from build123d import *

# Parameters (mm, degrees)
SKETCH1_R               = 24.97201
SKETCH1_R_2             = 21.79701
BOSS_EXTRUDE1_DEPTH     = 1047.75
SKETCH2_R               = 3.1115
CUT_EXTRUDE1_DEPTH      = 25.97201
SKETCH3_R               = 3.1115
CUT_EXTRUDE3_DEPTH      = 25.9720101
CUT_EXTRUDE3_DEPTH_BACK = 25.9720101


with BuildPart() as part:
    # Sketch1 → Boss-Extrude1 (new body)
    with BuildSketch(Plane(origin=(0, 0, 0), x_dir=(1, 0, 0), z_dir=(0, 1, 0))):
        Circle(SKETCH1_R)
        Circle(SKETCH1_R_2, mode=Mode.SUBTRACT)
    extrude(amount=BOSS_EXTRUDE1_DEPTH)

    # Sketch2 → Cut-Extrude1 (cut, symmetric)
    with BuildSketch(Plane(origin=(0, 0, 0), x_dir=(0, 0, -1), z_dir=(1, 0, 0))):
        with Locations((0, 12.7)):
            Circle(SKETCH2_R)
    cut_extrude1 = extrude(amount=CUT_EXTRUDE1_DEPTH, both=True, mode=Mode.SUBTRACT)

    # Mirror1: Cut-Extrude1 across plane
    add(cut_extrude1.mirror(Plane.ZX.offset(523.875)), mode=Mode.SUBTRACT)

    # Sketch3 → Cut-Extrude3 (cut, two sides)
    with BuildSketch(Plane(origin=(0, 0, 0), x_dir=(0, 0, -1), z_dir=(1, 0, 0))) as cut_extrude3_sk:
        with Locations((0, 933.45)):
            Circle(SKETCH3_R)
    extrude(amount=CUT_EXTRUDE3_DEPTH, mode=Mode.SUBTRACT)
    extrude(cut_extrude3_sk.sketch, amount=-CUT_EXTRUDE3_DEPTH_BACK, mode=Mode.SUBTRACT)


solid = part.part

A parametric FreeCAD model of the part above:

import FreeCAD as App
import Part
import Sketcher

V = App.Vector
Q = App.Units.Quantity

doc = App.newDocument("Part")
body = doc.addObject("PartDesign::Body", "Body")

# Sketch on XZ plane
sketch1 = doc.addObject("Sketcher::SketchObject", "Sketch")
body.addObject(sketch1)
sketch1.AttachmentSupport = (doc.XZ_Plane, [""])
sketch1.MapMode = "FlatFace"
sketch1.addGeometry(Part.Circle(V(0, 0, 0), V(0, 0, 1), 25), False)
sketch1.addGeometry(Part.Circle(V(0, 0, 0), V(0, 0, 1), 22), False)
sketch1.addConstraint(Sketcher.Constraint("Coincident", 0, 3, -1, 1))
sketch1.addConstraint(Sketcher.Constraint("Coincident", 1, 3, -1, 1))
sketch1.addConstraint(Sketcher.Constraint("Diameter", 0, Q("1.9663 in")))
sketch1.addConstraint(Sketcher.Constraint("Diameter", 1, Q("1.7163 in")))
pad1 = doc.addObject("PartDesign::Pad", "Pad")
body.addObject(pad1)
pad1.Profile = sketch1
pad1.Length = Q("41.25 in")
pad1.Reversed = True

# Sketch on YZ plane
sketch2 = doc.addObject("Sketcher::SketchObject", "Sketch001")
body.addObject(sketch2)
sketch2.AttachmentSupport = (doc.YZ_Plane, [""])
sketch2.MapMode = "FlatFace"
sketch2.addGeometry(Part.Circle(V(12.7, 0, 0), V(0, 0, 1), 3.1), False)
sketch2.addConstraint(Sketcher.Constraint("PointOnObject", 0, 3, -1))
sketch2.addConstraint(Sketcher.Constraint("Diameter", 0, Q("0.245 in")))
sketch2.addConstraint(Sketcher.Constraint("DistanceX", -1, 1, 0, 3, Q("0.5 in")))
pocket1 = doc.addObject("PartDesign::Pocket", "Pocket")
body.addObject(pocket1)
pocket1.Profile = sketch2
pocket1.Length = 51.94402
pocket1.Midplane = True
doc.recompute()

datumplane = doc.addObject("PartDesign::Plane", "DatumPlane")
body.addObject(datumplane)
datumplane.AttachmentSupport = (doc.XZ_Plane, [""])
datumplane.MapMode = "FlatFace"
datumplane.AttachmentOffset = App.Placement(V(0, 0, -20.625 * 25.4), App.Rotation())
mirrored = doc.addObject("PartDesign::Mirrored", "Mirrored")
body.addObject(mirrored)
mirrored.Originals = [pocket1]
mirrored.MirrorPlane = (datumplane, [""])
body.Tip = mirrored

# Sketch on YZ plane
sketch3 = doc.addObject("Sketcher::SketchObject", "Sketch002")
body.addObject(sketch3)
sketch3.AttachmentSupport = (doc.YZ_Plane, [""])
sketch3.MapMode = "FlatFace"
sketch3.addGeometry(Part.Circle(V(933.5, 0, 0), V(0, 0, 1), 3.1), False)
sketch3.addConstraint(Sketcher.Constraint("PointOnObject", 0, 3, -1))
sketch3.addConstraint(Sketcher.Constraint("Diameter", 0, Q("0.245 in")))
sketch3.addConstraint(Sketcher.Constraint("DistanceX", -1, 1, 0, 3, Q("36.75 in")))
pocket2 = doc.addObject("PartDesign::Pocket", "Pocket001")
body.addObject(pocket2)
pocket2.Profile = sketch3
pocket2.Type = "ThroughAll"
pocket2.Midplane = True

doc.recompute()
